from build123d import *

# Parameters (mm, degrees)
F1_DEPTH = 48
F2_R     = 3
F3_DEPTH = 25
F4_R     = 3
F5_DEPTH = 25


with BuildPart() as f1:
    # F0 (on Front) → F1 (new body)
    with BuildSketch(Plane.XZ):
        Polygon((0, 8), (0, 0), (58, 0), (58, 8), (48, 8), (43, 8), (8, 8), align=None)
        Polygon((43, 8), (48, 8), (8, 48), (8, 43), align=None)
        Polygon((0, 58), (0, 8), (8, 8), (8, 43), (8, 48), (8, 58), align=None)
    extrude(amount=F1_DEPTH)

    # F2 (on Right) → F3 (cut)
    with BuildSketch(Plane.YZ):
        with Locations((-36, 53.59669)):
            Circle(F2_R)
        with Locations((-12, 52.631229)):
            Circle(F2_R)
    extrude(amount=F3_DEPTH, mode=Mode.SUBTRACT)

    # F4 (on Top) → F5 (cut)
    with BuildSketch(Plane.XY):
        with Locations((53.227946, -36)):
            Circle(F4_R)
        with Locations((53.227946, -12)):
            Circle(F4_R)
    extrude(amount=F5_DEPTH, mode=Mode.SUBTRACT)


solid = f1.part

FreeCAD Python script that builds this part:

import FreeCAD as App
import Part
import Sketcher


def add_polygon(sketch, points):
    """Adds a closed chain of lines whose ends are joined by coincident constraints."""
    first, n = sketch.GeometryCount, len(points)
    for a, b in zip(points, points[1:] + points[:1]):
        sketch.addGeometry(Part.LineSegment(App.Vector(*a, 0), App.Vector(*b, 0)), False)
    for i in range(n):
        sketch.addConstraint(Sketcher.Constraint("Coincident", first + i, 2, first + (i + 1) % n, 1))

doc = App.newDocument("Part")
params = doc.addObject("Spreadsheet::Sheet", "Params")
for row, (alias, value) in enumerate([
    ("sketch1_width", "58 mm"),
    ("sketch1_width2", "10 mm"),
    ("sketch1_width3", "8 mm"),
    ("sketch1_width4", "35 mm"),
    ("pad1_length", "48 mm"),
    ("sketch2_diameter", "6 mm"),
    ("pocket1_length", "25 mm"),
    ("sketch3_diameter", "6 mm"),
    ("pocket2_length", "25 mm"),
], start=1):
    params.set(f"A{row}", alias)
    params.set(f"B{row}", "=" + value)
    params.setAlias(f"B{row}", alias)

body = doc.addObject("PartDesign::Body", "Body")

# Sketch on XZ plane
sketch1 = body.newObject("Sketcher::SketchObject", "Sketch")
sketch1.AttachmentSupport = (doc.getObject("XZ_Plane"), [""])
sketch1.MapMode = "FlatFace"
add_polygon(sketch1, [(0, 0), (58, 0), (58, 8), (48, 8), (8, 48), (8, 58), (0, 58)])  # lines 0-6
add_polygon(sketch1, [(8, 43), (43, 8), (8, 8)])  # lines 7-9
sketch1.addConstraint([
    Sketcher.Constraint("Horizontal", 0),
    Sketcher.Constraint("Vertical", 1),
    Sketcher.Constraint("Horizontal", 2),
    Sketcher.Constraint("Vertical", 4),
    Sketcher.Constraint("Horizontal", 5),
    Sketcher.Constraint("Vertical", 6),
    Sketcher.Constraint("Horizontal", 8),
    Sketcher.Constraint("Vertical", 9),
    Sketcher.Constraint("Coincident", 6, 2, -1, 1),
    Sketcher.Constraint("Parallel", 3, 7),
    Sketcher.Constraint("Horizontal", 2, 2, 7, 2),
    Sketcher.Constraint("Vertical", 4, 2, 8, 2),
    Sketcher.Constraint("Equal", 5, 1),
    Sketcher.Constraint("Equal", 2, 4),
    Sketcher.Constraint("Equal", 0, 6),
    Sketcher.Constraint("DistanceX", 0, 1, 0, 2, 58.0),
    Sketcher.Constraint("DistanceX", 2, 2, 2, 1, 10.0),
    Sketcher.Constraint("DistanceX", 5, 2, 5, 1, 8.0),
    Sketcher.Constraint("DistanceX", 8, 2, 8, 1, 35.0),
])
sketch1.setExpression("Constraints[25]", "Params.sketch1_width")
sketch1.setExpression("Constraints[26]", "Params.sketch1_width2")
sketch1.setExpression("Constraints[27]", "Params.sketch1_width3")
sketch1.setExpression("Constraints[28]", "Params.sketch1_width4")
pad1 = body.newObject("PartDesign::Pad", "Pad")
pad1.Profile = sketch1
pad1.setExpression("Length", "Params.pad1_length")

# Sketch on YZ plane
sketch2 = body.newObject("Sketcher::SketchObject", "Sketch001")
sketch2.AttachmentSupport = (doc.getObject("YZ_Plane"), [""])
sketch2.MapMode = "FlatFace"
sketch2.addGeometry([
    Part.Circle(App.Vector(-36, 53.6, 0), App.Vector(0, 0, 1), 3),
    Part.Circle(App.Vector(-12, 52.6, 0), App.Vector(0, 0, 1), 3),
], False)
sketch2.addConstraint([
    Sketcher.Constraint("Equal", 0, 1),
    Sketcher.Constraint("Diameter", 0, 6.0),
    Sketcher.Constraint("DistanceX", 0, 3, -1, 1, 36.0),
    Sketcher.Constraint("DistanceX", 1, 3, -1, 1, 12.0),
    Sketcher.Constraint("DistanceY", -1, 1, 0, 3, 53.59669),
    Sketcher.Constraint("DistanceY", -1, 1, 1, 3, 52.631229),
])
sketch2.setExpression("Constraints[1]", "Params.sketch2_diameter")
pocket1 = body.newObject("PartDesign::Pocket", "Pocket")
pocket1.Profile = sketch2
pocket1.setExpression("Length", "Params.pocket1_length")
pocket1.Reversed = True

# Sketch on XY plane
sketch3 = body.newObject("Sketcher::SketchObject", "Sketch002")
sketch3.AttachmentSupport = (doc.getObject("XY_Plane"), [""])
sketch3.MapMode = "FlatFace"
sketch3.addGeometry([
    Part.Circle(App.Vector(53.2, -36, 0), App.Vector(0, 0, 1), 3),
    Part.Circle(App.Vector(53.2, -12, 0), App.Vector(0, 0, 1), 3),
], False)
sketch3.addConstraint([
    Sketcher.Constraint("Equal", 0, 1),
    Sketcher.Constraint("Vertical", 0, 3, 1, 3),
    Sketcher.Constraint("Diameter", 0, 6.0),
    Sketcher.Constraint("DistanceY", 0, 3, -1, 1, 36.0),
    Sketcher.Constraint("DistanceY", 1, 3, -1, 1, 12.0),
    Sketcher.Constraint("DistanceX", -1, 1, 0, 3, 53.227946),
])
sketch3.setExpression("Constraints[2]", "Params.sketch3_diameter")
pocket2 = body.newObject("PartDesign::Pocket", "Pocket001")
pocket2.Profile = sketch3
pocket2.setExpression("Length", "Params.pocket2_length")
pocket2.Reversed = True

doc.recompute()
